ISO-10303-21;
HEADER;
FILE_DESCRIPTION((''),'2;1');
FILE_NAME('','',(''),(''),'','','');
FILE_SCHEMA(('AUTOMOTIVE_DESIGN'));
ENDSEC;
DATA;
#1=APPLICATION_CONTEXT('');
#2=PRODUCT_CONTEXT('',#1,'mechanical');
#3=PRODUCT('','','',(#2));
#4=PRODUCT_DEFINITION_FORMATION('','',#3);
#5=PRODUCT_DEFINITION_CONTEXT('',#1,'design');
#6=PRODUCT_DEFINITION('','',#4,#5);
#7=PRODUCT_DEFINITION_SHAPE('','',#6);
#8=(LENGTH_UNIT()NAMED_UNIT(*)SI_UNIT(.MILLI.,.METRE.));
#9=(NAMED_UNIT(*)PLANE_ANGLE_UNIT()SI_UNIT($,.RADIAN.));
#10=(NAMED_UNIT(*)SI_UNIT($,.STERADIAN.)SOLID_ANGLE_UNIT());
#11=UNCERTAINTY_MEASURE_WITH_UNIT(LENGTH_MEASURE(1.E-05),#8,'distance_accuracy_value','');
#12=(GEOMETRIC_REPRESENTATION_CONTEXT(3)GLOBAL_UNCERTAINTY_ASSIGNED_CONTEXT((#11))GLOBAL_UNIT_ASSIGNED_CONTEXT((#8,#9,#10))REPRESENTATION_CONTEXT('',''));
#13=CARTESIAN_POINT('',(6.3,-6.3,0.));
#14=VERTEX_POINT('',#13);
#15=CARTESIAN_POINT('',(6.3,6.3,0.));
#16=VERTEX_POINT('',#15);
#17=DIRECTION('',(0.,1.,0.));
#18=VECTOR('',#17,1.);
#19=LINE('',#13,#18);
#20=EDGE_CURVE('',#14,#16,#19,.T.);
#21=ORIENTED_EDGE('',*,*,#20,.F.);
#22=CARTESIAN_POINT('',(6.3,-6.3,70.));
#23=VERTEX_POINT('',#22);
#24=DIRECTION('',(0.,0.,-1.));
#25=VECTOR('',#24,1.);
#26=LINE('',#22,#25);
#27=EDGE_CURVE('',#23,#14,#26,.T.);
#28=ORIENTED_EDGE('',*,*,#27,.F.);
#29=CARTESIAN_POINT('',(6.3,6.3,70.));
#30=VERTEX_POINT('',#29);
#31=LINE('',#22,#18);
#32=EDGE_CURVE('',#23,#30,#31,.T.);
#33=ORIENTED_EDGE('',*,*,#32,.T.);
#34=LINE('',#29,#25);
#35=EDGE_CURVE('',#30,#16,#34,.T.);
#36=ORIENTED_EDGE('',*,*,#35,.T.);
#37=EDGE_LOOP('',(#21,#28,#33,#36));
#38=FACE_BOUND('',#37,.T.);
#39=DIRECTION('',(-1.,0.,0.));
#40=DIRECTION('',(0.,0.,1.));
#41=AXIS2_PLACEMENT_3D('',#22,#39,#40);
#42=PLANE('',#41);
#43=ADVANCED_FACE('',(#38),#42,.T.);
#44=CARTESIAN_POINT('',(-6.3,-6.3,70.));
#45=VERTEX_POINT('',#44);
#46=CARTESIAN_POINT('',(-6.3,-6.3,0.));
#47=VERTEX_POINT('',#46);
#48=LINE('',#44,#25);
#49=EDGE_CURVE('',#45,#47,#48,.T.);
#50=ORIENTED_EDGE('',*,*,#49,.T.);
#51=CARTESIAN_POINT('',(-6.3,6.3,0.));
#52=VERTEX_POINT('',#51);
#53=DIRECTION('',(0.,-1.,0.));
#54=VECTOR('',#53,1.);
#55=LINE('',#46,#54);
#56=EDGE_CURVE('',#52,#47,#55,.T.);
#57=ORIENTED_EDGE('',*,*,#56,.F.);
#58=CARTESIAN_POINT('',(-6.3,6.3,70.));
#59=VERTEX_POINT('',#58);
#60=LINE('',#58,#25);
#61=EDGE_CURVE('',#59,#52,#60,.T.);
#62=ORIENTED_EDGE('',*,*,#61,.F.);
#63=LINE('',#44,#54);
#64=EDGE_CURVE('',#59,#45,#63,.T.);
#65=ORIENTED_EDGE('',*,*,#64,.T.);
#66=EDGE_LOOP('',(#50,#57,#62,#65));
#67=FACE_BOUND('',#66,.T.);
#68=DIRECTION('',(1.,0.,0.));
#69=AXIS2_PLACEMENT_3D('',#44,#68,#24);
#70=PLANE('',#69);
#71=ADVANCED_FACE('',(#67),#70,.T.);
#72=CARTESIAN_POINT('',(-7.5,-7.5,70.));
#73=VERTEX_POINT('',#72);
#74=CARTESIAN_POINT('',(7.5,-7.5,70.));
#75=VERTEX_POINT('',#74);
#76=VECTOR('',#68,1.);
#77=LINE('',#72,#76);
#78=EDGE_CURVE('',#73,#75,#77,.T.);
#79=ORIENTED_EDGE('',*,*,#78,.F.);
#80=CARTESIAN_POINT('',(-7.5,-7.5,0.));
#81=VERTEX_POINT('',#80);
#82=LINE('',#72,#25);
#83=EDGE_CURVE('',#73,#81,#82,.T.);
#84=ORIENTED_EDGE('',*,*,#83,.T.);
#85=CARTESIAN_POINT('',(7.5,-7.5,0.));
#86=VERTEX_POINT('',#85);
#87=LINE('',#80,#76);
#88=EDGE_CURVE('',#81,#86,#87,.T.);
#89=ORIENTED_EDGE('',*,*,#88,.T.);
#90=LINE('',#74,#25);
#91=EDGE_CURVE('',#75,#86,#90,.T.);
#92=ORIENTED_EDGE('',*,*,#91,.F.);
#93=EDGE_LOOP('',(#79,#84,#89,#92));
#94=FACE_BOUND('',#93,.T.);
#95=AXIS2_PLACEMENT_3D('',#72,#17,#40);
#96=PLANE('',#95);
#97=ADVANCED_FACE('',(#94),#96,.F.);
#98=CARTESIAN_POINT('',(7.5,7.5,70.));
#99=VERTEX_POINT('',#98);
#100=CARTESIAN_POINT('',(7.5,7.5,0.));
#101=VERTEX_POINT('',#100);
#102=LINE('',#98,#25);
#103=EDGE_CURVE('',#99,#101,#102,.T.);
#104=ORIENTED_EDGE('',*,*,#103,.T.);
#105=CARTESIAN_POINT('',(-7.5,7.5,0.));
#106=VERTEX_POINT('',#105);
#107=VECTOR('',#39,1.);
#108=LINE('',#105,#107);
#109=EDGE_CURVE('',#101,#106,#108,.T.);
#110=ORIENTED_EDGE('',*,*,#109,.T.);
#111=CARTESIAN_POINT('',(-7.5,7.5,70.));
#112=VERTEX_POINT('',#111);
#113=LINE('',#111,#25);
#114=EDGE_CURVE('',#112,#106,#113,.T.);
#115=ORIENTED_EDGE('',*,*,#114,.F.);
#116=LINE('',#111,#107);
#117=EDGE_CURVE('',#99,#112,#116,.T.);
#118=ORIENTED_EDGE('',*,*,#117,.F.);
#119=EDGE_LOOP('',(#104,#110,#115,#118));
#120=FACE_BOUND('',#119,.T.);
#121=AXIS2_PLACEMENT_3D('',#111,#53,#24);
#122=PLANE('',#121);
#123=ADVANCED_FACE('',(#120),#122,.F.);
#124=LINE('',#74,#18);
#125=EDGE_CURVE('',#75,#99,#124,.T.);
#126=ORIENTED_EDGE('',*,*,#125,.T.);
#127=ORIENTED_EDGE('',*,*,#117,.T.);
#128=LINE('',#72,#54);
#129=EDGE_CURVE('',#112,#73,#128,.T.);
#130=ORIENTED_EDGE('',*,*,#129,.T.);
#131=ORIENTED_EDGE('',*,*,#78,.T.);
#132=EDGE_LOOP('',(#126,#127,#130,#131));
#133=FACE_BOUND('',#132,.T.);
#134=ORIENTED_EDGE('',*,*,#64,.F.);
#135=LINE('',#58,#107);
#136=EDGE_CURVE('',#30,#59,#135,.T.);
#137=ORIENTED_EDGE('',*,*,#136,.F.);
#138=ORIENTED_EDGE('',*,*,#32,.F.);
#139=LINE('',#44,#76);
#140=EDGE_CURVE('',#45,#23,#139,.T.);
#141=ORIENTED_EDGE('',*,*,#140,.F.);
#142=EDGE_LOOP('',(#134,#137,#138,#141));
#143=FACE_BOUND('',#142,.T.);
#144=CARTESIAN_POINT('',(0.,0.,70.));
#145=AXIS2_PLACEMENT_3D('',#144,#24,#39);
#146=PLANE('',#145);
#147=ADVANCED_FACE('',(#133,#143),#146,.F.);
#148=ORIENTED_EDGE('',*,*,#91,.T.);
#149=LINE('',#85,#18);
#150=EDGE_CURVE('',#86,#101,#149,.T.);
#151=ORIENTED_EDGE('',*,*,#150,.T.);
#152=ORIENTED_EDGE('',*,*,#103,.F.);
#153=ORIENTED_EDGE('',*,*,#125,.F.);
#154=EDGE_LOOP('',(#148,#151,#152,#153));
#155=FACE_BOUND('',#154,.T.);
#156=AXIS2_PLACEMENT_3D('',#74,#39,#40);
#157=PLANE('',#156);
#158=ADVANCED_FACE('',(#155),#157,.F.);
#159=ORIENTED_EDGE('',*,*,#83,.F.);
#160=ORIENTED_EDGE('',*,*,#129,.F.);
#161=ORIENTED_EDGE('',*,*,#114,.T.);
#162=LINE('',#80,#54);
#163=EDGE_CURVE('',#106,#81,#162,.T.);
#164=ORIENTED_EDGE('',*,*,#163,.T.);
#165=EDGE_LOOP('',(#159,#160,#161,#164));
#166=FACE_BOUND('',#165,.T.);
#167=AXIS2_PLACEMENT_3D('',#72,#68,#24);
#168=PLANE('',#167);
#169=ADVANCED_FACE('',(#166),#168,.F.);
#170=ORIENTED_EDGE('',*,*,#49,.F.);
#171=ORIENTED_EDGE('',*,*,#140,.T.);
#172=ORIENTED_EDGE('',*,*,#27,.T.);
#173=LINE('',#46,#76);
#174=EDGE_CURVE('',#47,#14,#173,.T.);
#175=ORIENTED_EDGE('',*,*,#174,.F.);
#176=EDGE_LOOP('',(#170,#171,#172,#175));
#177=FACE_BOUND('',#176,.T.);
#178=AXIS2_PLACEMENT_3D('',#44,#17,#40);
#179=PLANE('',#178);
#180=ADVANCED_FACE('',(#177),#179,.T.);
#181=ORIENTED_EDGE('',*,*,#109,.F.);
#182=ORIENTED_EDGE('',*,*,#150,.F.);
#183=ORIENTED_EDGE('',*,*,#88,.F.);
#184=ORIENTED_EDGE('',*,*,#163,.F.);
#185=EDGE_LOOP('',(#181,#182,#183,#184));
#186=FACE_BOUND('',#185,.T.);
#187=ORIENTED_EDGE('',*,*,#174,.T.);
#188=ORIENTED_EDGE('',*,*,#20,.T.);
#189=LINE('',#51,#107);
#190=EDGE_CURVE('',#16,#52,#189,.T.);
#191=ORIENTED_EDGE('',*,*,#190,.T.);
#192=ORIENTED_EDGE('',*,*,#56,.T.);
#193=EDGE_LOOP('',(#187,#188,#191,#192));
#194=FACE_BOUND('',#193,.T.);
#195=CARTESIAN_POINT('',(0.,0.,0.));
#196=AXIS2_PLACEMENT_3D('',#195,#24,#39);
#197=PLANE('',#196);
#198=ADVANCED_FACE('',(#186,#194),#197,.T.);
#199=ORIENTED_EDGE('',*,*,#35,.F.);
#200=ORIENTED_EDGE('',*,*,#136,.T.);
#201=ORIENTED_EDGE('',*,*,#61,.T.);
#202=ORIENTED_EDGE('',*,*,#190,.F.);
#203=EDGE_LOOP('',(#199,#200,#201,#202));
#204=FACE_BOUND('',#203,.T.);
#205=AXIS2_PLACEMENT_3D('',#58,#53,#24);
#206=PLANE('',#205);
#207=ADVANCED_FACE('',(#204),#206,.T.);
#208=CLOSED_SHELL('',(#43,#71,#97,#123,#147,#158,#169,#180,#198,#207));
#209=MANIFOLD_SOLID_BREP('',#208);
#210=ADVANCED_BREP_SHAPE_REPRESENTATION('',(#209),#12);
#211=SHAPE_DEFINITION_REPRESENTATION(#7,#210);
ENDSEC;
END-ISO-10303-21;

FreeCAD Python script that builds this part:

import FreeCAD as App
import Part
import Sketcher
Q = App.Units.Quantity


def add_polygon(sketch, points):
    """Adds a closed chain of lines whose ends are joined by coincident constraints."""
    first, n = sketch.GeometryCount, len(points)
    for a, b in zip(points, points[1:] + points[:1]):
        sketch.addGeometry(Part.LineSegment(App.Vector(*a, 0), App.Vector(*b, 0)), False)
    for i in range(n):
        sketch.addConstraint(Sketcher.Constraint("Coincident", first + i, 2, first + (i + 1) % n, 1))

doc = App.newDocument("Part")
params = doc.addObject("Spreadsheet::Sheet", "Params")
for row, (alias, value) in enumerate([
    ("sketch1_width", "15 mm"),
    ("sketch1_width2", "12.6 mm"),
    ("pad1_length", "70 mm"),
], start=1):
    params.set(f"A{row}", alias)
    params.set(f"B{row}", "=" + value)
    params.setAlias(f"B{row}", alias)

body = doc.addObject("PartDesign::Body", "Body")

# Sketch on XY plane
sketch1 = doc.addObject("Sketcher::SketchObject", "Sketch")
body.addObject(sketch1)
sketch1.AttachmentSupport = (doc.XY_Plane, [""])
sketch1.MapMode = "FlatFace"
add_polygon(sketch1, [(-8, 8), (-8, -8), (8, -8), (8, 8)])  # lines 0-3
add_polygon(sketch1, [(6, -6), (-6, -6), (-6, 6), (6, 6)])  # lines 4-7
sketch1.addConstraint([
    Sketcher.Constraint("Vertical", 0),
    Sketcher.Constraint("Horizontal", 1),
    Sketcher.Constraint("Vertical", 2),
    Sketcher.Constraint("Horizontal", 3),
    Sketcher.Constraint("Horizontal", 4),
    Sketcher.Constraint("Vertical", 5),
    Sketcher.Constraint("Horizontal", 6),
    Sketcher.Constraint("Vertical", 7),
    Sketcher.Constraint("Symmetric", 0, 2, 2, 2, -1, 1),
    Sketcher.Constraint("Symmetric", 4, 2, 6, 2, -1, 1),
    Sketcher.Constraint("Equal", 3, 0),
    Sketcher.Constraint("Equal", 6, 5),
    Sketcher.Constraint("DistanceX", 1, 1, 1, 2, Q("15 mm")),
    Sketcher.Constraint("DistanceX", 4, 2, 4, 1, Q("12.6 mm")),
])
sketch1.setExpression("Constraints[20]", "Params.sketch1_width")
sketch1.setExpression("Constraints[21]", "Params.sketch1_width2")
pad1 = doc.addObject("PartDesign::Pad", "Pad")
body.addObject(pad1)
pad1.Profile = sketch1
pad1.setExpression("Length", "Params.pad1_length")

doc.recompute()
